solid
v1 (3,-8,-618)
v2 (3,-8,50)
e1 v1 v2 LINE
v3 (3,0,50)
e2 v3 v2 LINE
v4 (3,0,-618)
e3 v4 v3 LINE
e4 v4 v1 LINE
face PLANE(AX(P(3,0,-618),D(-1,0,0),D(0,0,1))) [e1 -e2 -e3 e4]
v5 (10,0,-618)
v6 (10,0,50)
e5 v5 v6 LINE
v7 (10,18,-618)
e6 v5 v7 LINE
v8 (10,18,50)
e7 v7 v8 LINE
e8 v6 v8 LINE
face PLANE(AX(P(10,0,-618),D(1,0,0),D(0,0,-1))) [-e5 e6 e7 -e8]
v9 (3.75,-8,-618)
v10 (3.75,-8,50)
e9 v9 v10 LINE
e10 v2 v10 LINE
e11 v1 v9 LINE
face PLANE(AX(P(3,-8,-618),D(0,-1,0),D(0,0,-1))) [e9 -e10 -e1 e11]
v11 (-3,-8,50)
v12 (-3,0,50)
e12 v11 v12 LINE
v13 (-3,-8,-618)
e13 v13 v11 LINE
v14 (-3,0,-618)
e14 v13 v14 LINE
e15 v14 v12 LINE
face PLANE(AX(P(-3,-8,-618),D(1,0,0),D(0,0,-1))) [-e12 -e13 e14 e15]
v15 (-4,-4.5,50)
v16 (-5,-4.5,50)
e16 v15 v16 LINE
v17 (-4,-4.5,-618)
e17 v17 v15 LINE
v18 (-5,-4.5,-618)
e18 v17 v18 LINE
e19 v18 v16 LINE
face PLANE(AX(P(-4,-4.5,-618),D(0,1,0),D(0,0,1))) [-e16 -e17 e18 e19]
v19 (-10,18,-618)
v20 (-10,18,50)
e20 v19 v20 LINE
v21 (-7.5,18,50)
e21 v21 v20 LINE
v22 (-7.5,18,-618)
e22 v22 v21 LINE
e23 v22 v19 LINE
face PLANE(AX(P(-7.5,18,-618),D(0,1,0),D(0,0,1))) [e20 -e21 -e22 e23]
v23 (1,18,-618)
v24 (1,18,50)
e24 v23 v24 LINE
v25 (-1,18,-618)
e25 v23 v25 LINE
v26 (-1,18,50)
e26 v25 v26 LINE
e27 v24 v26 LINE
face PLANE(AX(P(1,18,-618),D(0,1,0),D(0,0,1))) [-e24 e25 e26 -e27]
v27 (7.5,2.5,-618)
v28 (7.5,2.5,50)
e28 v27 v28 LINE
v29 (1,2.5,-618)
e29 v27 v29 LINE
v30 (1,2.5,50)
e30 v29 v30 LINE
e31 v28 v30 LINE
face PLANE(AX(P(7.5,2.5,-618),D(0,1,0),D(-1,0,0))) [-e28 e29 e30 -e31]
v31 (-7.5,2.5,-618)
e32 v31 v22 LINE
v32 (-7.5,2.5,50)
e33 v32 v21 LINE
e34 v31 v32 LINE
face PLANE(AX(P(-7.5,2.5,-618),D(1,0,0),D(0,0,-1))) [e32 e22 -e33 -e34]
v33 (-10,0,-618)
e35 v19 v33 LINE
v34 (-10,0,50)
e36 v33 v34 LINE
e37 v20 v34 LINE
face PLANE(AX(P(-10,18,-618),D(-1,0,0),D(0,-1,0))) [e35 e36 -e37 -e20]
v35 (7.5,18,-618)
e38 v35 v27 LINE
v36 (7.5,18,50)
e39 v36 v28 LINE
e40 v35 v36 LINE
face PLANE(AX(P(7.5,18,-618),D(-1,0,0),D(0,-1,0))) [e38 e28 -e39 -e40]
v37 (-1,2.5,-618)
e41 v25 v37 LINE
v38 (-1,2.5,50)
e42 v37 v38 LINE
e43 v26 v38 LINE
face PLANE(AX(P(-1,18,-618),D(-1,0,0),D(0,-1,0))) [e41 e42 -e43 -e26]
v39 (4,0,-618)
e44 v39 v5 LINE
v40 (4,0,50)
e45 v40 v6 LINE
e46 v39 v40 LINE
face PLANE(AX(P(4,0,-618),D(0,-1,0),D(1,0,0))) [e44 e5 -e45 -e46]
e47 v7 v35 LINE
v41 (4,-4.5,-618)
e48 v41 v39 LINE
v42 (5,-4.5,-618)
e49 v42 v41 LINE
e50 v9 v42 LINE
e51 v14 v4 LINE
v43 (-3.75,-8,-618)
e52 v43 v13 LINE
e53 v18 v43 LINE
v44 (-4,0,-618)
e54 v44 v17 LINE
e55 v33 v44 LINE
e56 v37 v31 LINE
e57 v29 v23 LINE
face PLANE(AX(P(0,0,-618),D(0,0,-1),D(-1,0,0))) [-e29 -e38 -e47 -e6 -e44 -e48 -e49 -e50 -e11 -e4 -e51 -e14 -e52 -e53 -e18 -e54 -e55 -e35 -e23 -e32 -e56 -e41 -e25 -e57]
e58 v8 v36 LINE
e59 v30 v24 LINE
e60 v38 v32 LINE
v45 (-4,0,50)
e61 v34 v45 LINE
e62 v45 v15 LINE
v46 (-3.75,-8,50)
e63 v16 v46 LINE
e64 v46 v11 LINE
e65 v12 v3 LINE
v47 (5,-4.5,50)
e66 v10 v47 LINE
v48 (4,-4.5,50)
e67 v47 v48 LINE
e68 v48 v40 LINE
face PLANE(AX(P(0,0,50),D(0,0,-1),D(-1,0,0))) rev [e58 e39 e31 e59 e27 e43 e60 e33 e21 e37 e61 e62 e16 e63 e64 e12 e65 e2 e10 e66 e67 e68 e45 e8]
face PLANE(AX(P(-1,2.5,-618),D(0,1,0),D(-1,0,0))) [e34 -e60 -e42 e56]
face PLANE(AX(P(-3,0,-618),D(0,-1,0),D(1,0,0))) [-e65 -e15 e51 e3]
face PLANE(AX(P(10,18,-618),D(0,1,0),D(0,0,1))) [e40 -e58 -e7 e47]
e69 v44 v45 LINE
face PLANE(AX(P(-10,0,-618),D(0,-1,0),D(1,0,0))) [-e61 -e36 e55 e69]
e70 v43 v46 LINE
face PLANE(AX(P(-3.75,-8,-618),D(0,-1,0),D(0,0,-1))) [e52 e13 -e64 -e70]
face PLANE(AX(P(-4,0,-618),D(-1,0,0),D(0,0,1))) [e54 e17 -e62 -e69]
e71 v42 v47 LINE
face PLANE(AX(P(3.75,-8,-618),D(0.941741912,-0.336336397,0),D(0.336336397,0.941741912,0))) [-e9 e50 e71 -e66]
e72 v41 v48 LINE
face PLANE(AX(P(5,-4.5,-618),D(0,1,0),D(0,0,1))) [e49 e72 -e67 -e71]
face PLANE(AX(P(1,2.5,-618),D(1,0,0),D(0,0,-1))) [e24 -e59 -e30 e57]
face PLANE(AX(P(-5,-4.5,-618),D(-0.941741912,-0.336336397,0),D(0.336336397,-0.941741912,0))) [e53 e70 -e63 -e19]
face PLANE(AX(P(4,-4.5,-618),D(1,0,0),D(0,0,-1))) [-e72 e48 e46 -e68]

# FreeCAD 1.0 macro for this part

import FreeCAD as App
import Part
import Sketcher

V = App.Vector

doc = App.newDocument("Part")
body = doc.addObject("PartDesign::Body", "Body")

sketch1 = body.newObject("Sketcher::SketchObject", "Sketch")
sketch1.AttachmentSupport = (doc.getObject("XY_Plane"), [""])
sketch1.MapMode = "FlatFace"
sketch1.AttachmentOffset = App.Placement(V(0, 0, 50), App.Rotation())
sketch1.addGeometry(Part.LineSegment(V(-1, 2.5, 0), V(-7.5, 2.5, 0)), False)
sketch1.addGeometry(Part.LineSegment(V(-7.5, 2.5, 0), V(-7.5, 18, 0)), False)
sketch1.addGeometry(Part.LineSegment(V(-7.5, 18, 0), V(-10, 18, 0)), False)
sketch1.addGeometry(Part.LineSegment(V(-10, 18, 0), V(-10, 0, 0)), False)
sketch1.addGeometry(Part.LineSegment(V(-10, 0, 0), V(-4, 0, 0)), False)
sketch1.addGeometry(Part.LineSegment(V(-4, 0, 0), V(-4, -4.5, 0)), False)
sketch1.addGeometry(Part.LineSegment(V(-4, -4.5, 0), V(-5, -4.5, 0)), False)
sketch1.addGeometry(Part.LineSegment(V(-5, -4.5, 0), V(-3.8, -8, 0)), False)
sketch1.addGeometry(Part.LineSegment(V(-3.8, -8, 0), V(-3, -8, 0)), False)
sketch1.addGeometry(Part.LineSegment(V(-3, -8, 0), V(-3, 0, 0)), False)
sketch1.addGeometry(Part.LineSegment(V(-3, 0, 0), V(3, 0, 0)), False)
sketch1.addGeometry(Part.LineSegment(V(3, 0, 0), V(3, -8, 0)), False)
sketch1.addGeometry(Part.LineSegment(V(3, -8, 0), V(3.8, -8, 0)), False)
sketch1.addGeometry(Part.LineSegment(V(3.8, -8, 0), V(5, -4.5, 0)), False)
sketch1.addGeometry(Part.LineSegment(V(5, -4.5, 0), V(4, -4.5, 0)), False)
sketch1.addGeometry(Part.LineSegment(V(4, -4.5, 0), V(4, 0, 0)), False)
sketch1.addGeometry(Part.LineSegment(V(4, 0, 0), V(10, 0, 0)), False)
sketch1.addGeometry(Part.LineSegment(V(10, 0, 0), V(10, 18, 0)), False)
sketch1.addGeometry(Part.LineSegment(V(10, 18, 0), V(7.5, 18, 0)), False)
sketch1.addGeometry(Part.LineSegment(V(7.5, 18, 0), V(7.5, 2.5, 0)), False)
sketch1.addGeometry(Part.LineSegment(V(7.5, 2.5, 0), V(1, 2.5, 0)), False)
sketch1.addGeometry(Part.LineSegment(V(1, 2.5, 0), V(1, 18, 0)), False)
sketch1.addGeometry(Part.LineSegment(V(1, 18, 0), V(-1, 18, 0)), False)
sketch1.addGeometry(Part.LineSegment(V(-1, 18, 0), V(-1, 2.5, 0)), False)
sketch1.addConstraint(Sketcher.Constraint("Coincident", 0, 2, 1, 1))
sketch1.addConstraint(Sketcher.Constraint("Coincident", 1, 2, 2, 1))
sketch1.addConstraint(Sketcher.Constraint("Coincident", 2, 2, 3, 1))
sketch1.addConstraint(Sketcher.Constraint("Coincident", 3, 2, 4, 1))
sketch1.addConstraint(Sketcher.Constraint("Coincident", 4, 2, 5, 1))
sketch1.addConstraint(Sketcher.Constraint("Coincident", 5, 2, 6, 1))
sketch1.addConstraint(Sketcher.Constraint("Coincident", 6, 2, 7, 1))
sketch1.addConstraint(Sketcher.Constraint("Coincident", 7, 2, 8, 1))
sketch1.addConstraint(Sketcher.Constraint("Coincident", 8, 2, 9, 1))
sketch1.addConstraint(Sketcher.Constraint("Coincident", 9, 2, 10, 1))
sketch1.addConstraint(Sketcher.Constraint("Coincident", 10, 2, 11, 1))
sketch1.addConstraint(Sketcher.Constraint("Coincident", 11, 2, 12, 1))
sketch1.addConstraint(Sketcher.Constraint("Coincident", 12, 2, 13, 1))
sketch1.addConstraint(Sketcher.Constraint("Coincident", 13, 2, 14, 1))
sketch1.addConstraint(Sketcher.Constraint("Coincident", 14, 2, 15, 1))
sketch1.addConstraint(Sketcher.Constraint("Coincident", 15, 2, 16, 1))
sketch1.addConstraint(Sketcher.Constraint("Coincident", 16, 2, 17, 1))
sketch1.addConstraint(Sketcher.Constraint("Coincident", 17, 2, 18, 1))
sketch1.addConstraint(Sketcher.Constraint("Coincident", 18, 2, 19, 1))
sketch1.addConstraint(Sketcher.Constraint("Coincident", 19, 2, 20, 1))
sketch1.addConstraint(Sketcher.Constraint("Coincident", 20, 2, 21, 1))
sketch1.addConstraint(Sketcher.Constraint("Coincident", 21, 2, 22, 1))
sketch1.addConstraint(Sketcher.Constraint("Coincident", 22, 2, 23, 1))
sketch1.addConstraint(Sketcher.Constraint("Coincident", 23, 2, 0, 1))
sketch1.addConstraint(Sketcher.Constraint("Horizontal", 0))
sketch1.addConstraint(Sketcher.Constraint("Vertical", 1))
sketch1.addConstraint(Sketcher.Constraint("Horizontal", 2))
sketch1.addConstraint(Sketcher.Constraint("Vertical", 3))
sketch1.addConstraint(Sketcher.Constraint("Horizontal", 4))
sketch1.addConstraint(Sketcher.Constraint("Vertical", 5))
sketch1.addConstraint(Sketcher.Constraint("Horizontal", 6))
sketch1.addConstraint(Sketcher.Constraint("Horizontal", 8))
sketch1.addConstraint(Sketcher.Constraint("Vertical", 9))
sketch1.addConstraint(Sketcher.Constraint("Horizontal", 10))
sketch1.addConstraint(Sketcher.Constraint("Vertical", 11))
sketch1.addConstraint(Sketcher.Constraint("Horizontal", 12))
sketch1.addConstraint(Sketcher.Constraint("Horizontal", 14))
sketch1.addConstraint(Sketcher.Constraint("Vertical", 15))
sketch1.addConstraint(Sketcher.Constraint("Horizontal", 16))
sketch1.addConstraint(Sketcher.Constraint("Vertical", 17))
sketch1.addConstraint(Sketcher.Constraint("Horizontal", 18))
sketch1.addConstraint(Sketcher.Constraint("Vertical", 19))
sketch1.addConstraint(Sketcher.Constraint("Horizontal", 20))
sketch1.addConstraint(Sketcher.Constraint("Vertical", 21))
sketch1.addConstraint(Sketcher.Constraint("Horizontal", 22))
sketch1.addConstraint(Sketcher.Constraint("Vertical", 23))
sketch1.addConstraint(Sketcher.Constraint("Symmetric", 9, 2, 10, 2, -1, 1))
sketch1.addConstraint(Sketcher.Constraint("Symmetric", 4, 2, 15, 2, -1, 1))
sketch1.addConstraint(Sketcher.Constraint("Symmetric", 7, 2, 12, 2, -2))
sketch1.addConstraint(Sketcher.Constraint("Symmetric", 6, 2, 13, 2, -2))
sketch1.addConstraint(Sketcher.Constraint("Symmetric", 3, 2, 16, 2, -2))
sketch1.addConstraint(Sketcher.Constraint("Symmetric", 1, 2, 18, 2, -2))
sketch1.addConstraint(Sketcher.Constraint("Symmetric", 20, 2, 23, 2, -2))
sketch1.addConstraint(Sketcher.Constraint("Horizontal", 18, 2, 21, 2))
sketch1.addConstraint(Sketcher.Constraint("Equal", 4, 10))
sketch1.addConstraint(Sketcher.Constraint("DistanceX", 4, 1, 4, 2, 6.0))
sketch1.addConstraint(Sketcher.Constraint("DistanceX", 6, 2, 6, 1, 1.0))
sketch1.addConstraint(Sketcher.Constraint("DistanceX", 22, 2, 22, 1, 2.0))
sketch1.addConstraint(Sketcher.Constraint("DistanceY", 3, 2, 3, 1, 18.0))
sketch1.addConstraint(Sketcher.Constraint("DistanceY", 9, 1, 9, 2, 8.0))
sketch1.addConstraint(Sketcher.Constraint("DistanceX", 0, 2, 0, 1, 6.5))
sketch1.addConstraint(Sketcher.Constraint("DistanceX", 2, 2, 2, 1, 2.5))
sketch1.addConstraint(Sketcher.Constraint("DistanceY", 1, 1, 1, 2, 15.5))
sketch1.addConstraint(Sketcher.Constraint("DistanceY", 5, 2, 5, 1, 4.5))
sketch1.addConstraint(Sketcher.Constraint("DistanceX", 8, 1, 8, 2, 0.75))
pad1 = body.newObject("PartDesign::Pad", "Pad")
pad1.Profile = sketch1
pad1.Length = 668
pad1.Reversed = True

doc.recompute()
